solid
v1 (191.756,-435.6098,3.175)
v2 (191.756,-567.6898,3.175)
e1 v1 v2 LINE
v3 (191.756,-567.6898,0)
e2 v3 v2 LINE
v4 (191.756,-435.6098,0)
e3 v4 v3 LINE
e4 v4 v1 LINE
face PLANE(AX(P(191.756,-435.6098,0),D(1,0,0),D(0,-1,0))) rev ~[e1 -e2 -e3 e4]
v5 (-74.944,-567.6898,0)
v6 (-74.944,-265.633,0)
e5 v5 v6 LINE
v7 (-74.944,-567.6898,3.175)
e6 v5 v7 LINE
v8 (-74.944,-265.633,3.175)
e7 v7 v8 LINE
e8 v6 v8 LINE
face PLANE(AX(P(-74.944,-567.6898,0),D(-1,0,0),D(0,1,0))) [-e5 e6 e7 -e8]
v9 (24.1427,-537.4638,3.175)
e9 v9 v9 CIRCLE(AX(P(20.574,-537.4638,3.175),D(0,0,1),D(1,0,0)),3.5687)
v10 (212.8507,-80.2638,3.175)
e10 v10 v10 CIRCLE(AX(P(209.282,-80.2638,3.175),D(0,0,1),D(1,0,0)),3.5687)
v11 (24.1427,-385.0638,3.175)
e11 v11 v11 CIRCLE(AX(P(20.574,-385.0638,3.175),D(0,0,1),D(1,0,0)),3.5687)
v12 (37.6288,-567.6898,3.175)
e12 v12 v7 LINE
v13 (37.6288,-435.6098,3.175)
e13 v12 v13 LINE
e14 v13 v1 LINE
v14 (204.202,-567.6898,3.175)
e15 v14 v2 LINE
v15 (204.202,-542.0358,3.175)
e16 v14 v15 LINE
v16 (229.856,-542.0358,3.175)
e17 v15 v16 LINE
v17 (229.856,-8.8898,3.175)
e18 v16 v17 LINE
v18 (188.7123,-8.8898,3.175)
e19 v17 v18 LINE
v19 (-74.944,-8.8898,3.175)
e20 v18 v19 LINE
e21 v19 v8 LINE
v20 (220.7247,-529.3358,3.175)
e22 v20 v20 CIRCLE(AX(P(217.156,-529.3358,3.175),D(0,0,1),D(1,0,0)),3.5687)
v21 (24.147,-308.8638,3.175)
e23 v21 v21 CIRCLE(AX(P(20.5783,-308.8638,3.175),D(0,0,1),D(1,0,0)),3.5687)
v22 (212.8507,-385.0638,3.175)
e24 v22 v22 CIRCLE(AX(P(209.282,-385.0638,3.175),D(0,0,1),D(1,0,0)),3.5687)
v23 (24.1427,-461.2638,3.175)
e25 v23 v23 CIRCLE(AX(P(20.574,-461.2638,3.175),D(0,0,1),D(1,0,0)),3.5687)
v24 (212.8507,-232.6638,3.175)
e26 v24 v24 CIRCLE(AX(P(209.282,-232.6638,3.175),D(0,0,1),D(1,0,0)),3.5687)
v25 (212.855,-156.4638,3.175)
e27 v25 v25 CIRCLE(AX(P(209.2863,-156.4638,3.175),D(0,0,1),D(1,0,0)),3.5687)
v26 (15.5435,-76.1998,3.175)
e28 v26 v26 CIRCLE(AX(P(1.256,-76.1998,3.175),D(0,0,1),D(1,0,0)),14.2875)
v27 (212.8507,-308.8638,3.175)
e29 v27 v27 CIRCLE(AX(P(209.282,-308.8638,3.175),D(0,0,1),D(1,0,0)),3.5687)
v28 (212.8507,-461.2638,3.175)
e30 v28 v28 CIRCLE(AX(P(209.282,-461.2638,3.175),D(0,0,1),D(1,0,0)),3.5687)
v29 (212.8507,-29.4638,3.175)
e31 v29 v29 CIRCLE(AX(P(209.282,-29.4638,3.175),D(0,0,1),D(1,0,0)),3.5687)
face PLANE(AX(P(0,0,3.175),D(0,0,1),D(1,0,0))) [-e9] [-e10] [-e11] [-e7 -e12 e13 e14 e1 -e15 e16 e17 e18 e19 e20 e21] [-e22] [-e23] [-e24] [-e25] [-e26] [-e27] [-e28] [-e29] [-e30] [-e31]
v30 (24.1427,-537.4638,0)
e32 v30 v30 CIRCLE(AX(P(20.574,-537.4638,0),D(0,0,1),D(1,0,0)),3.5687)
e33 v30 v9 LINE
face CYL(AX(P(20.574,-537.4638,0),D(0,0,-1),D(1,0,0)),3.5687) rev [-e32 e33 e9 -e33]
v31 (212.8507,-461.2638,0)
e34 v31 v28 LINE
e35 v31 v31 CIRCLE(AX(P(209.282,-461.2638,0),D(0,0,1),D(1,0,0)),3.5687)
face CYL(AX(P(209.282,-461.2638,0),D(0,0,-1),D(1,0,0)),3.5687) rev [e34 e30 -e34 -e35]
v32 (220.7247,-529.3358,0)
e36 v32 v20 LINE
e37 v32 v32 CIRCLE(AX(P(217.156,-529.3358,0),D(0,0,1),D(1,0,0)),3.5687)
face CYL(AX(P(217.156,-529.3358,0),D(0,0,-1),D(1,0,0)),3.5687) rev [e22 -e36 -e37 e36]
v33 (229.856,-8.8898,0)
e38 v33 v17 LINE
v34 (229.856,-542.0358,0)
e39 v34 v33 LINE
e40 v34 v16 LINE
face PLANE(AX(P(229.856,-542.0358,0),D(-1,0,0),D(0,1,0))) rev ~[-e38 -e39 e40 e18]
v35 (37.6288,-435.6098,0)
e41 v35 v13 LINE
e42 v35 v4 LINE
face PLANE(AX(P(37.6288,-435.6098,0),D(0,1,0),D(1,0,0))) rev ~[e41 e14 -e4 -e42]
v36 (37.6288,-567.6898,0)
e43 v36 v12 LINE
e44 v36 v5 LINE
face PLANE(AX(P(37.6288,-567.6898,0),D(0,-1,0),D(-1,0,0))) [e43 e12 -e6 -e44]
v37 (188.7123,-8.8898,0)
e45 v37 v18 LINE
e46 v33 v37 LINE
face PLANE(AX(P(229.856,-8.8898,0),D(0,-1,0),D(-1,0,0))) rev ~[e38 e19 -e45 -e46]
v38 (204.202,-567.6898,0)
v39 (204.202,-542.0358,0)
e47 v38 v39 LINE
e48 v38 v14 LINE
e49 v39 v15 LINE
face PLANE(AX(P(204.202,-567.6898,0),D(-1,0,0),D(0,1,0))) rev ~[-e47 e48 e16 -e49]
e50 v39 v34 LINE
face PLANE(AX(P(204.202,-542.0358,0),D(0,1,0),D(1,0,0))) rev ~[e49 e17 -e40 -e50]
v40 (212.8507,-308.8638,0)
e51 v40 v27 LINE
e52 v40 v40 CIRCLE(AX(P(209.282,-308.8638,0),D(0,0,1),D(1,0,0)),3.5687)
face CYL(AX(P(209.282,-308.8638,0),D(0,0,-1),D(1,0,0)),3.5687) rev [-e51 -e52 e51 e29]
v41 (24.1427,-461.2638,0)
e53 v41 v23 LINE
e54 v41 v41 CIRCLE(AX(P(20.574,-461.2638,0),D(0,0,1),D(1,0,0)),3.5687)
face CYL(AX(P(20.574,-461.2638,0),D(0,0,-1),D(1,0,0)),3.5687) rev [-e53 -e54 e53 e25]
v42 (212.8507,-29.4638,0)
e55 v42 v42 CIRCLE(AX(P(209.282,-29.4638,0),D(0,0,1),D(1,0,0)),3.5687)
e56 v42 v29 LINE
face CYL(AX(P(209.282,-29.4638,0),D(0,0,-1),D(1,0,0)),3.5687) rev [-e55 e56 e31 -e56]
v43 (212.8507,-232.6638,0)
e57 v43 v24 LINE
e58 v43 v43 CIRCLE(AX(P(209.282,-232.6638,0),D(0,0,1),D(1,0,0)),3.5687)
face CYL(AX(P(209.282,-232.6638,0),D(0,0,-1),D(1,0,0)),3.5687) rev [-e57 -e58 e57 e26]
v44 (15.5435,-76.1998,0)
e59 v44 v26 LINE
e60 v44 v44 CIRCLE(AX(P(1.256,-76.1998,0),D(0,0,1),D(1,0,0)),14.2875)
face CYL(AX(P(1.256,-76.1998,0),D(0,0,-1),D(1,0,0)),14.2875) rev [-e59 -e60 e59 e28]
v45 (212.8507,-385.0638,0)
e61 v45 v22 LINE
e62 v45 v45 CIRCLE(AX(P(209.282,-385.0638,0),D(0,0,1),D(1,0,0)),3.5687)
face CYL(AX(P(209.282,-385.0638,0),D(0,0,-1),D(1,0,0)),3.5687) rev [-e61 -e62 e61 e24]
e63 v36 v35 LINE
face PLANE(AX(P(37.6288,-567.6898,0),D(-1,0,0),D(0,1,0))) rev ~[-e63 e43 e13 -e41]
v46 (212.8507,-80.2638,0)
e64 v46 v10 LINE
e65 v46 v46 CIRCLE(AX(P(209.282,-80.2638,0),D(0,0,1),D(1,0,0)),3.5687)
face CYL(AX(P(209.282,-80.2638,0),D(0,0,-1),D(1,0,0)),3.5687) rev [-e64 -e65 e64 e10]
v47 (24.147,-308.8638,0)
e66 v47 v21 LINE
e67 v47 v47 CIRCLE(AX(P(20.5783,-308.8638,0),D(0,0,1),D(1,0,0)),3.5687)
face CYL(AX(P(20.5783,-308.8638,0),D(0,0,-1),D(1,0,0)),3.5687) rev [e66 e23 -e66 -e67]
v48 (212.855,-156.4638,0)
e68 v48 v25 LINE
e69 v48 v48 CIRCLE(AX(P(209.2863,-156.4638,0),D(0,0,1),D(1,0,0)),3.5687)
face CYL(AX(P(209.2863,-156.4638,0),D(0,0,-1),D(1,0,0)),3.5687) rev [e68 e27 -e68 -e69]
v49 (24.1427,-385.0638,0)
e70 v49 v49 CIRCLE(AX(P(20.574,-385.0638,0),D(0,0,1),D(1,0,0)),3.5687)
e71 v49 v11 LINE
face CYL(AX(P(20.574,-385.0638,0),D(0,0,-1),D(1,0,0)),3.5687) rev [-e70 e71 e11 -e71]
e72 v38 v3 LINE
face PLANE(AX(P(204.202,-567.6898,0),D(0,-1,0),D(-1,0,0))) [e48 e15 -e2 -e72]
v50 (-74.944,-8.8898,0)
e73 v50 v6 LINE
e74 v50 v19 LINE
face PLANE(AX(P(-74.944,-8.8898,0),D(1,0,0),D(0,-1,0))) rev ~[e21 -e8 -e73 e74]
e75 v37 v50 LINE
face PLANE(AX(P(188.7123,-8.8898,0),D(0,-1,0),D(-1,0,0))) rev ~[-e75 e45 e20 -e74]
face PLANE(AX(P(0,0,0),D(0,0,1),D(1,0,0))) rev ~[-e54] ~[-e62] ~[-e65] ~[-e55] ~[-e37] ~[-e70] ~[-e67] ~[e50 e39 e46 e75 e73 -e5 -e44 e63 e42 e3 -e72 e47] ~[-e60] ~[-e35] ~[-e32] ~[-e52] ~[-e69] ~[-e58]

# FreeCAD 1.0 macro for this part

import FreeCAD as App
import Part
import Sketcher

V = App.Vector
Q = App.Units.Quantity

doc = App.newDocument("Part")
params = doc.addObject("Spreadsheet::Sheet", "Params")
for row, (alias, value) in enumerate([
    ("sketch1_width", "12 in"),
    ("sketch1_height", "22 in"),
    ("sketch1_diameter", "0.281 in"),
    ("sketch1_diameter2", "1.125 in"),
    ("sketch1_height2", "5.2 in"),
    ("pad1_length", "0.125 in"),
], start=1):
    params.set(f"A{row}", alias)
    params.set(f"B{row}", "=" + value)
    params.setAlias(f"B{row}", alias)

body = doc.addObject("PartDesign::Body", "Body")

# Sketch on XY plane
sketch1 = body.newObject("Sketcher::SketchObject", "Sketch")
sketch1.AttachmentSupport = (doc.getObject("XY_Plane"), [""])
sketch1.MapMode = "FlatFace"
sketch1.addGeometry(Part.LineSegment(V(191.756, -567.6898, 0), V(204.202, -567.6898, 0)), False)
sketch1.addGeometry(Part.LineSegment(V(204.202, -567.6898, 0), V(204.202, -542.0358, 0)), False)
sketch1.addGeometry(Part.LineSegment(V(204.202, -542.0358, 0), V(229.856, -542.0358, 0)), False)
sketch1.addGeometry(Part.LineSegment(V(229.856, -542.0358, 0), V(229.856, -8.8898, 0)), False)
sketch1.addGeometry(Part.LineSegment(V(229.856, -8.8898, 0), V(-74.944, -8.8898, 0)), False)
sketch1.addGeometry(Part.LineSegment(V(-74.944, -8.8898, 0), V(-74.944, -567.6898, 0)), False)
sketch1.addGeometry(Part.LineSegment(V(-74.944, -567.6898, 0), V(37.6288, -567.6898, 0)), False)
sketch1.addGeometry(Part.LineSegment(V(37.6288, -567.6898, 0), V(37.6288, -435.6098, 0)), False)
sketch1.addGeometry(Part.LineSegment(V(37.6288, -435.6098, 0), V(191.756, -435.6098, 0)), False)
sketch1.addGeometry(Part.LineSegment(V(191.756, -435.6098, 0), V(191.756, -567.6898, 0)), False)
sketch1.addGeometry(Part.Circle(V(20.574, -537.4638, 0), V(0, 0, 1), 3.5687), False)
sketch1.addGeometry(Part.Circle(V(20.574, -461.2638, 0), V(0, 0, 1), 3.5687), False)
sketch1.addGeometry(Part.Circle(V(20.574, -385.0638, 0), V(0, 0, 1), 3.5687), False)
sketch1.addGeometry(Part.Circle(V(20.5783, -308.8638, 0), V(0, 0, 1), 3.5687), False)
sketch1.addGeometry(Part.Circle(V(217.156, -529.3358, 0), V(0, 0, 1), 3.5687), False)
sketch1.addGeometry(Part.Circle(V(209.282, -461.2638, 0), V(0, 0, 1), 3.5687), False)
sketch1.addGeometry(Part.Circle(V(209.282, -385.0638, 0), V(0, 0, 1), 3.5687), False)
sketch1.addGeometry(Part.Circle(V(209.282, -308.8638, 0), V(0, 0, 1), 3.5687), False)
sketch1.addGeometry(Part.Circle(V(1.256, -76.1998, 0), V(0, 0, 1), 14.2875), False)
sketch1.addGeometry(Part.Circle(V(209.282, -232.6638, 0), V(0, 0, 1), 3.5687), False)
sketch1.addGeometry(Part.Circle(V(209.2863, -156.4638, 0), V(0, 0, 1), 3.5687), False)
sketch1.addGeometry(Part.Circle(V(209.282, -80.2638, 0), V(0, 0, 1), 3.5687), False)
sketch1.addGeometry(Part.Circle(V(209.282, -29.4638, 0), V(0, 0, 1), 3.5687), False)
sketch1.addConstraint(Sketcher.Constraint("Coincident", 0, 2, 1, 1))
sketch1.addConstraint(Sketcher.Constraint("Coincident", 1, 2, 2, 1))
sketch1.addConstraint(Sketcher.Constraint("Coincident", 2, 2, 3, 1))
sketch1.addConstraint(Sketcher.Constraint("Coincident", 3, 2, 4, 1))
sketch1.addConstraint(Sketcher.Constraint("Coincident", 4, 2, 5, 1))
sketch1.addConstraint(Sketcher.Constraint("Coincident", 5, 2, 6, 1))
sketch1.addConstraint(Sketcher.Constraint("Coincident", 6, 2, 7, 1))
sketch1.addConstraint(Sketcher.Constraint("Coincident", 7, 2, 8, 1))
sketch1.addConstraint(Sketcher.Constraint("Coincident", 8, 2, 9, 1))
sketch1.addConstraint(Sketcher.Constraint("Coincident", 9, 2, 0, 1))
sketch1.addConstraint(Sketcher.Constraint("Horizontal", 0))
sketch1.addConstraint(Sketcher.Constraint("Vertical", 1))
sketch1.addConstraint(Sketcher.Constraint("Horizontal", 2))
sketch1.addConstraint(Sketcher.Constraint("Vertical", 3))
sketch1.addConstraint(Sketcher.Constraint("Horizontal", 4))
sketch1.addConstraint(Sketcher.Constraint("Vertical", 5))
sketch1.addConstraint(Sketcher.Constraint("Horizontal", 6))
sketch1.addConstraint(Sketcher.Constraint("Vertical", 7))
sketch1.addConstraint(Sketcher.Constraint("Horizontal", 8))
sketch1.addConstraint(Sketcher.Constraint("Vertical", 9))
sketch1.addConstraint(Sketcher.Constraint("Equal", 10, 11))
sketch1.addConstraint(Sketcher.Constraint("Equal", 11, 12))
sketch1.addConstraint(Sketcher.Constraint("Equal", 12, 13))
sketch1.addConstraint(Sketcher.Constraint("Equal", 13, 14))
sketch1.addConstraint(Sketcher.Constraint("Equal", 14, 15))
sketch1.addConstraint(Sketcher.Constraint("Equal", 15, 16))
sketch1.addConstraint(Sketcher.Constraint("Equal", 16, 17))
sketch1.addConstraint(Sketcher.Constraint("Equal", 17, 19))
sketch1.addConstraint(Sketcher.Constraint("Equal", 19, 20))
sketch1.addConstraint(Sketcher.Constraint("Equal", 20, 21))
sketch1.addConstraint(Sketcher.Constraint("Equal", 21, 22))
sketch1.addConstraint(Sketcher.Constraint("Horizontal", 11, 3, 15, 3))
sketch1.addConstraint(Sketcher.Constraint("Horizontal", 12, 3, 16, 3))
sketch1.addConstraint(Sketcher.Constraint("Horizontal", 13, 3, 17, 3))
sketch1.addConstraint(Sketcher.Constraint("Horizontal", 0, 2, 5, 2))
sketch1.addConstraint(Sketcher.Constraint("Vertical", 10, 3, 11, 3))
sketch1.addConstraint(Sketcher.Constraint("Vertical", 11, 3, 12, 3))
sketch1.addConstraint(Sketcher.Constraint("Vertical", 15, 3, 16, 3))
sketch1.addConstraint(Sketcher.Constraint("Vertical", 16, 3, 17, 3))
sketch1.addConstraint(Sketcher.Constraint("Vertical", 17, 3, 19, 3))
sketch1.addConstraint(Sketcher.Constraint("Vertical", 19, 3, 21, 3))
sketch1.addConstraint(Sketcher.Constraint("Vertical", 21, 3, 22, 3))
sketch1.addConstraint(Sketcher.Constraint("Equal", 2, 1))
sketch1.addConstraint(Sketcher.Constraint("DistanceX", 4, 2, 4, 1, Q("12 in")))
sketch1.addConstraint(Sketcher.Constraint("DistanceY", 5, 2, 5, 1, Q("22 in")))
sketch1.addConstraint(Sketcher.Constraint("Diameter", 10, Q("0.281 in")))
sketch1.addConstraint(Sketcher.Constraint("Diameter", 18, Q("1.125 in")))
sketch1.addConstraint(Sketcher.Constraint("DistanceY", 7, 1, 7, 2, Q("5.2 in")))
sketch1.addConstraint(Sketcher.Constraint("DistanceY", 18, 3, -1, 1, Q("3 in")))
sketch1.addConstraint(Sketcher.Constraint("DistanceY", 10, 3, 11, 3, Q("3 in")))
sketch1.addConstraint(Sketcher.Constraint("DistanceY", 11, 3, 12, 3, Q("3 in")))
sketch1.addConstraint(Sketcher.Constraint("DistanceY", 12, 3, 13, 3, Q("3 in")))
sketch1.addConstraint(Sketcher.Constraint("DistanceY", 17, 3, 19, 3, Q("3 in")))
sketch1.addConstraint(Sketcher.Constraint("DistanceY", 19, 3, 20, 3, Q("3 in")))
sketch1.addConstraint(Sketcher.Constraint("DistanceY", 20, 3, 21, 3, Q("3 in")))
sketch1.addConstraint(Sketcher.Constraint("DistanceY", 21, 3, 22, 3, Q("2 in")))
sketch1.addConstraint(Sketcher.Constraint("DistanceX", 4, 2, 18, 3, Q("3 in")))
sketch1.addConstraint(Sketcher.Constraint("DistanceX", 0, 1, 0, 2, Q("0.49 in")))
sketch1.addConstraint(Sketcher.Constraint("DistanceX", 2, 1, 2, 2, Q("1.01 in")))
sketch1.addConstraint(Sketcher.Constraint("DistanceY", 1, 2, 14, 3, Q("0.5 in")))
sketch1.addConstraint(Sketcher.Constraint("DistanceX", 14, 3, 2, 2, Q("0.5 in")))
sketch1.addConstraint(Sketcher.Constraint("DistanceX", 8, 1, 8, 2, Q("6.068 in")))
sketch1.addConstraint(Sketcher.Constraint("DistanceX", -1, 1, 10, 3, Q("0.81 in")))
sketch1.addConstraint(Sketcher.Constraint("DistanceY", 0, 2, 15, 3, Q("4.19 in")))
sketch1.addConstraint(Sketcher.Constraint("DistanceX", 15, 3, 2, 2, Q("0.81 in")))
sketch1.addConstraint(Sketcher.Constraint("DistanceY", 10, 3, -1, 1, Q("21.16 in")))
sketch1.addConstraint(Sketcher.Constraint("DistanceX", 11, 3, 15, 3, Q("188.708 mm")))
sketch1.addConstraint(Sketcher.Constraint("DistanceX", 13, 3, 15, 3, Q("188.7037 mm")))
sketch1.addConstraint(Sketcher.Constraint("DistanceX", 13, 3, 20, 3, Q("188.708 mm")))
sketch1.setExpression("Constraints[43]", "Params.sketch1_width")
sketch1.setExpression("Constraints[44]", "Params.sketch1_height")
sketch1.setExpression("Constraints[45]", "Params.sketch1_diameter")
sketch1.setExpression("Constraints[46]", "Params.sketch1_diameter2")
sketch1.setExpression("Constraints[47]", "Params.sketch1_height2")
pad1 = body.newObject("PartDesign::Pad", "Pad")
pad1.Profile = sketch1
pad1.setExpression("Length", "Params.pad1_length")

doc.recompute()
